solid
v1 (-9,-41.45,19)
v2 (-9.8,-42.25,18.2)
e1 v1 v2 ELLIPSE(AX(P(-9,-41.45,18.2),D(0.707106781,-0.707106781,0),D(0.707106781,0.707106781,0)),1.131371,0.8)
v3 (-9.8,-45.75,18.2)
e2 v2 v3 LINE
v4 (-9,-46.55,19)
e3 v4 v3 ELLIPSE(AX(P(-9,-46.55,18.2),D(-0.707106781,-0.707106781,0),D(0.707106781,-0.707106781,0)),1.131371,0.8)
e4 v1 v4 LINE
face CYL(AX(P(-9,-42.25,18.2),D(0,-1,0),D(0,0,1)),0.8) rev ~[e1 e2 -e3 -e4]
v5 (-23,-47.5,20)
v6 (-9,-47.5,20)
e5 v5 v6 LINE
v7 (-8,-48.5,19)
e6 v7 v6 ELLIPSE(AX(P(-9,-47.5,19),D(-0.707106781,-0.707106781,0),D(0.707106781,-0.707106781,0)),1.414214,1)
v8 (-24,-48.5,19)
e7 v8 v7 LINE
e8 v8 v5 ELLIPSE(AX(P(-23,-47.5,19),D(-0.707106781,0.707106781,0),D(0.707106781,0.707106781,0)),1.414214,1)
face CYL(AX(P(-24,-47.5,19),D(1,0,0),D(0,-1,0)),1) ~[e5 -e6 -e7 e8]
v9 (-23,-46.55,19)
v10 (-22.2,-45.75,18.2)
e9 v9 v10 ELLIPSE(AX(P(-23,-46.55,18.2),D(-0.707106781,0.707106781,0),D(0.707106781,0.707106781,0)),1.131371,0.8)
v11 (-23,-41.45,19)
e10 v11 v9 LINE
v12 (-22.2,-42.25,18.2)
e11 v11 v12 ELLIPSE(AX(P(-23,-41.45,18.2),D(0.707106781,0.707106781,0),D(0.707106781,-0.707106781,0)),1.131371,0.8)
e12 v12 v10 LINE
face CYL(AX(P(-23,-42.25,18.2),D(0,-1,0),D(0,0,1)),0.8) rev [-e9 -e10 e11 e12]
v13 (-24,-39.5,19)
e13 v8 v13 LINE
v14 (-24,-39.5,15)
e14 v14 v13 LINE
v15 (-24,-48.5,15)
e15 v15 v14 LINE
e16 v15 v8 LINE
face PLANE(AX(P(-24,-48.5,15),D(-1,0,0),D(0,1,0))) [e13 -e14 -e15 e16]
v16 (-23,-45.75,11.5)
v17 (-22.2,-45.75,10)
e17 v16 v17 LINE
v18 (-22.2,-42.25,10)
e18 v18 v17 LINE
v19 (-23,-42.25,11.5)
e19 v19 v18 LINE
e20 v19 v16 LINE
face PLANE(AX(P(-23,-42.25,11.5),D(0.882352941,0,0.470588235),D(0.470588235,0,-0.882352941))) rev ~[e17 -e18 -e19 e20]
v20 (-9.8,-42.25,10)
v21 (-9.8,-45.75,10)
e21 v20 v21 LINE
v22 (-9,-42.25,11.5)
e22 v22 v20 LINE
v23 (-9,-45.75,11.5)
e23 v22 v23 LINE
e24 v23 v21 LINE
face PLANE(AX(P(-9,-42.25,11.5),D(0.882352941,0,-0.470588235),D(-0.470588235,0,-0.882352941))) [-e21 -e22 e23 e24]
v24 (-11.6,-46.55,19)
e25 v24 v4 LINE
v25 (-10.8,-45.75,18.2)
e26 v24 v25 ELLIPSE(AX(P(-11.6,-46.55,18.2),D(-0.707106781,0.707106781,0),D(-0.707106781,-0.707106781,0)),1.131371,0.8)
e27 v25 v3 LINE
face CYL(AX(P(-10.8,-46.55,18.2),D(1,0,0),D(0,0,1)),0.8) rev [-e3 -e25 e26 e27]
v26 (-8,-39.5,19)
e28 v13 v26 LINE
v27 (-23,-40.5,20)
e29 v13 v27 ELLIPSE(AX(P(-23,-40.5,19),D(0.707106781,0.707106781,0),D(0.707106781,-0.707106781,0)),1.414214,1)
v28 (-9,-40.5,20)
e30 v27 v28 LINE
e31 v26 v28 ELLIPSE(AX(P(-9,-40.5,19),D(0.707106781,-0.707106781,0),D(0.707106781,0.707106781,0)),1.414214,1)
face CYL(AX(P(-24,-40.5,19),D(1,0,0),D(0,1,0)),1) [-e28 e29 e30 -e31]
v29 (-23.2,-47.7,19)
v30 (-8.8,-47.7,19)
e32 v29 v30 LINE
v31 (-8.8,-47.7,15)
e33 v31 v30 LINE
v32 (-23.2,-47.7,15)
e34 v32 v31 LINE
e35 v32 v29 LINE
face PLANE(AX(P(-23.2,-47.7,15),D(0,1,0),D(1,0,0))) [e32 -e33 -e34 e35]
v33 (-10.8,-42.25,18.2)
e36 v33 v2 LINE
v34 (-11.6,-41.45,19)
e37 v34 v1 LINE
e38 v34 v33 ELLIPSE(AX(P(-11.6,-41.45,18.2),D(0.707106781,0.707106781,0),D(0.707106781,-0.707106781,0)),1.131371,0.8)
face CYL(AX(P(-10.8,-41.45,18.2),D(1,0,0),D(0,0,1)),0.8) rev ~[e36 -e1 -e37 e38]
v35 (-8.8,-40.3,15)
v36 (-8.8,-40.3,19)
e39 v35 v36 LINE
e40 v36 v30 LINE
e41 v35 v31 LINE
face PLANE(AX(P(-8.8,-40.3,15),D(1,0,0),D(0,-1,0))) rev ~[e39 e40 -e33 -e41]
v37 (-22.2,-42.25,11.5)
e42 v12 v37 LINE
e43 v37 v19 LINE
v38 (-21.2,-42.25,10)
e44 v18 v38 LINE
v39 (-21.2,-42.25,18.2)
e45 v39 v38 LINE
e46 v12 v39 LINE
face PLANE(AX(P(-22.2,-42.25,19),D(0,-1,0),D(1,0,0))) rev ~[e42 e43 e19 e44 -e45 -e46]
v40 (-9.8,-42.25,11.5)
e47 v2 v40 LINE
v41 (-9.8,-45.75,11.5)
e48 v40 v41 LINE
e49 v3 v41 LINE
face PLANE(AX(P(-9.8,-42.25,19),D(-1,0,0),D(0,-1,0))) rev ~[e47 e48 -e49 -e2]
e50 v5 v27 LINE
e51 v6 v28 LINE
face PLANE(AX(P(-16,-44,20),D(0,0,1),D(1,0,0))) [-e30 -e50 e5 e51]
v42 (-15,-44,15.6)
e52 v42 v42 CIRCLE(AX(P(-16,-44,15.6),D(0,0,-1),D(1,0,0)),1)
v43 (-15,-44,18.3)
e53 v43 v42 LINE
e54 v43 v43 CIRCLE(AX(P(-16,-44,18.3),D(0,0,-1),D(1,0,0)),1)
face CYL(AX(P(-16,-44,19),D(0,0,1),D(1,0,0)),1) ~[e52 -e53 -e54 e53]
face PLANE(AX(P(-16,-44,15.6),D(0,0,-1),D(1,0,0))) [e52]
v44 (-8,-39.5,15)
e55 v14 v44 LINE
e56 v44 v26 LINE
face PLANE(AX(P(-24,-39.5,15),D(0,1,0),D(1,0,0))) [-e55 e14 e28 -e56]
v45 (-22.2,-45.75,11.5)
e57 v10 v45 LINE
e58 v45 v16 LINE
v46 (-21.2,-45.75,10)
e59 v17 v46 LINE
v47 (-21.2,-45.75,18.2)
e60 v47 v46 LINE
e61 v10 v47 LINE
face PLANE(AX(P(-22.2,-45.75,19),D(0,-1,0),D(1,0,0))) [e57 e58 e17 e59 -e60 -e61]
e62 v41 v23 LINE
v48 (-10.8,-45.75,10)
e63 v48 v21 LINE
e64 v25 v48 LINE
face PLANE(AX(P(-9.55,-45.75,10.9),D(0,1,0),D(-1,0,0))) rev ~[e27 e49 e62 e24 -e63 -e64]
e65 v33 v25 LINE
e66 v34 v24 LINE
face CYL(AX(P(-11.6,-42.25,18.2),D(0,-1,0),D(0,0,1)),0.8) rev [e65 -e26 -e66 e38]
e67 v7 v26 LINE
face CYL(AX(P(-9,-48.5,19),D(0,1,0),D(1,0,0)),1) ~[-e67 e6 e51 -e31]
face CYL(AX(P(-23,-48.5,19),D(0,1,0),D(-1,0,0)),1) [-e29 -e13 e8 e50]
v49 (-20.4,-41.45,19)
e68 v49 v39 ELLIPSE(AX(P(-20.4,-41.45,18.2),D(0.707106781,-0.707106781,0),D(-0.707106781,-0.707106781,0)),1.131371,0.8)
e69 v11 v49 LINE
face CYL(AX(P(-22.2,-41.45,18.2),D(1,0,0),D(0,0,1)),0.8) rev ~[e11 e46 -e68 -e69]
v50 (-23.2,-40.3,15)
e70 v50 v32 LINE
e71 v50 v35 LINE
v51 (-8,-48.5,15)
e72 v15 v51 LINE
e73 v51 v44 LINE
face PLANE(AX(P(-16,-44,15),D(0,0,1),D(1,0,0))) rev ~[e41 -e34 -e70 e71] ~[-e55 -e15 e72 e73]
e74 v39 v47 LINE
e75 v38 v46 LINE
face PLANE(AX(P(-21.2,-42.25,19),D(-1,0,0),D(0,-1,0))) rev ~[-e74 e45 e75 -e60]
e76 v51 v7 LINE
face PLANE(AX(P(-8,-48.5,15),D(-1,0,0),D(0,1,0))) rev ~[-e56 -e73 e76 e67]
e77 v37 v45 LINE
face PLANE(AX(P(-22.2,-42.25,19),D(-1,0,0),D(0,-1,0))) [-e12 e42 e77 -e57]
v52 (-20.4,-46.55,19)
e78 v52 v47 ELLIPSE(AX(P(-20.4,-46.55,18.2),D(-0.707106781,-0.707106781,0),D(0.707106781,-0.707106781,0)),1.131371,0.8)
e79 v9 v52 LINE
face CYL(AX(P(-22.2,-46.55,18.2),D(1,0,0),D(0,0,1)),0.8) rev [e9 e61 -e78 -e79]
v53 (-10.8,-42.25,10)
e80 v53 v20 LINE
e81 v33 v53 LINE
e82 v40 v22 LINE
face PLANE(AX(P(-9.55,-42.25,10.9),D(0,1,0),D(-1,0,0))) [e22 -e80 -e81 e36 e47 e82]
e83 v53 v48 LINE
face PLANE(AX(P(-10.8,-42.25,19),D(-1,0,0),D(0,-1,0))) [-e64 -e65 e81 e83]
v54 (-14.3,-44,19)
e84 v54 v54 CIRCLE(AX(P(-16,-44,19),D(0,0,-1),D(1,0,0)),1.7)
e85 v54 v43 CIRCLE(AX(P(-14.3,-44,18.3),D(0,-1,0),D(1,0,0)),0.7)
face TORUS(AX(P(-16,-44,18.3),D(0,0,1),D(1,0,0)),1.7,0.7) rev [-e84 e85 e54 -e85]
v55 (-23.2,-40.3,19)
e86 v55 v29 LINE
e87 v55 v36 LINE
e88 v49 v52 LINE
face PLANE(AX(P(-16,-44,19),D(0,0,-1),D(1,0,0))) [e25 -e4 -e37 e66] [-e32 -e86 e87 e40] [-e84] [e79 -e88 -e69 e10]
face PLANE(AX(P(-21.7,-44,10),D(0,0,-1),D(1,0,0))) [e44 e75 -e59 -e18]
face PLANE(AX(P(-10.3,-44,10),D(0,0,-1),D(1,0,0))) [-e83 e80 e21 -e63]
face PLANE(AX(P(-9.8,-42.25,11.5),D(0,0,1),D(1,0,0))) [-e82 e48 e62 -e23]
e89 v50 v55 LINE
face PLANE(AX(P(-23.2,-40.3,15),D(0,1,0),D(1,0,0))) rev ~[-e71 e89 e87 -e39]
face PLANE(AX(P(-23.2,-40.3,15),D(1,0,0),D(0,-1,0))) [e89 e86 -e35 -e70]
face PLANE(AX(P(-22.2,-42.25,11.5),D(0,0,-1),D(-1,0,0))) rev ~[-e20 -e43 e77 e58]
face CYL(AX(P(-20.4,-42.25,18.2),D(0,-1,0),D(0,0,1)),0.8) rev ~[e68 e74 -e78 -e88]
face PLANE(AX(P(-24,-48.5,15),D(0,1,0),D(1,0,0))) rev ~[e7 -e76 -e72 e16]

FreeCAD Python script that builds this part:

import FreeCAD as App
import Part
import Sketcher
Q = App.Units.Quantity


def edges_at(feature, points):
    """Names of the edges that pass closest to the given points."""
    edges = feature.Shape.Edges
    near = lambda p: min(range(len(edges)), key=lambda i: edges[i].distToShape(Part.Vertex(*p))[0])
    return sorted({f"Edge{near(p) + 1}" for p in points})

doc = App.newDocument("Part")
body = doc.addObject("PartDesign::Body", "Body")

# Sketch on XY plane
sketch1 = body.newObject("Sketcher::SketchObject", "Sketch")
sketch1.AttachmentSupport = (doc.getObject("XY_Plane"), [""])
sketch1.MapMode = "FlatFace"
sketch1.addGeometry([
    Part.LineSegment(App.Vector(-8, 4.5, 0), App.Vector(-8, -4.5, 0)),
    Part.LineSegment(App.Vector(-8, -4.5, 0), App.Vector(8, -4.5, 0)),
    Part.LineSegment(App.Vector(8, -4.5, 0), App.Vector(8, 4.5, 0)),
    Part.LineSegment(App.Vector(8, 4.5, 0), App.Vector(-8, 4.5, 0)),
], False)
sketch1.addConstraint([
    Sketcher.Constraint("Coincident", 0, 2, 1, 1),
    Sketcher.Constraint("Coincident", 1, 2, 2, 1),
    Sketcher.Constraint("Coincident", 2, 2, 3, 1),
    Sketcher.Constraint("Coincident", 3, 2, 0, 1),
    Sketcher.Constraint("Vertical", 0),
    Sketcher.Constraint("Horizontal", 1),
    Sketcher.Constraint("Vertical", 2),
    Sketcher.Constraint("Horizontal", 3),
    Sketcher.Constraint("Symmetric", 0, 2, 2, 2, -1, 1),
    Sketcher.Constraint("DistanceX", 1, 1, 1, 2, Q("16 mm")),
    Sketcher.Constraint("DistanceY", 0, 2, 0, 1, Q("9 mm")),
])
pad1 = body.newObject("PartDesign::Pad", "Pad")
pad1.Profile = sketch1
pad1.Length = 5

# Sketch on XY plane
sketch2 = body.newObject("Sketcher::SketchObject", "Sketch001")
sketch2.AttachmentSupport = (doc.getObject("XY_Plane"), [""])
sketch2.MapMode = "FlatFace"
sketch2.addGeometry([
    Part.LineSegment(App.Vector(-7.2, -3.7, 0), App.Vector(-7.2, 3.7, 0)),
    Part.LineSegment(App.Vector(-7.2, 3.7, 0), App.Vector(7.2, 3.7, 0)),
    Part.LineSegment(App.Vector(7.2, 3.7, 0), App.Vector(7.2, -3.7, 0)),
    Part.LineSegment(App.Vector(7.2, -3.7, 0), App.Vector(-7.2, -3.7, 0)),
], False)
sketch2.addConstraint([
    Sketcher.Constraint("Coincident", 0, 2, 1, 1),
    Sketcher.Constraint("Coincident", 1, 2, 2, 1),
    Sketcher.Constraint("Coincident", 2, 2, 3, 1),
    Sketcher.Constraint("Coincident", 3, 2, 0, 1),
    Sketcher.Constraint("Vertical", 0),
    Sketcher.Constraint("Horizontal", 1),
    Sketcher.Constraint("Vertical", 2),
    Sketcher.Constraint("Horizontal", 3),
    Sketcher.Constraint("Symmetric", 0, 2, 2, 2, -1, 1),
    Sketcher.Constraint("DistanceX", 1, 1, 1, 2, Q("14.4 mm")),
    Sketcher.Constraint("DistanceY", 0, 1, 0, 2, Q("7.4 mm")),
])
pocket1 = body.newObject("PartDesign::Pocket", "Pocket")
pocket1.Profile = sketch2
pocket1.Length = 4
pocket1.Reversed = True

# Sketch on XY plane
sketch3 = body.newObject("Sketcher::SketchObject", "Sketch002")
sketch3.AttachmentSupport = (doc.getObject("XY_Plane"), [""])
sketch3.MapMode = "FlatFace"
sketch3.AttachmentOffset = App.Placement(App.Vector(0, 0, 4), App.Rotation())
sketch3.addGeometry([
    Part.LineSegment(App.Vector(-6.2, -1.75, 0), App.Vector(-6.2, 1.75, 0)),  # 0
    Part.LineSegment(App.Vector(-6.2, 1.75, 0), App.Vector(-5.2, 1.75, 0)),  # 1
    Part.LineSegment(App.Vector(-5.2, 1.75, 0), App.Vector(-5.2, -1.75, 0)),  # 2
    Part.LineSegment(App.Vector(-5.2, -1.75, 0), App.Vector(-6.2, -1.75, 0)),  # 3
    Part.LineSegment(App.Vector(5.2, -1.75, 0), App.Vector(5.2, 1.75, 0)),  # 4
    Part.LineSegment(App.Vector(5.2, 1.75, 0), App.Vector(6.2, 1.75, 0)),  # 5
    Part.LineSegment(App.Vector(6.2, 1.75, 0), App.Vector(6.2, -1.75, 0)),  # 6
    Part.LineSegment(App.Vector(6.2, -1.75, 0), App.Vector(5.2, -1.75, 0)),  # 7
], False)
sketch3.addConstraint([
    Sketcher.Constraint("Coincident", 0, 2, 1, 1),
    Sketcher.Constraint("Coincident", 1, 2, 2, 1),
    Sketcher.Constraint("Coincident", 2, 2, 3, 1),
    Sketcher.Constraint("Coincident", 3, 2, 0, 1),
    Sketcher.Constraint("Coincident", 4, 2, 5, 1),
    Sketcher.Constraint("Coincident", 5, 2, 6, 1),
    Sketcher.Constraint("Coincident", 6, 2, 7, 1),
    Sketcher.Constraint("Coincident", 7, 2, 4, 1),
    Sketcher.Constraint("Vertical", 0),
    Sketcher.Constraint("Horizontal", 1),
    Sketcher.Constraint("Vertical", 2),
    Sketcher.Constraint("Horizontal", 3),
    Sketcher.Constraint("Vertical", 4),
    Sketcher.Constraint("Horizontal", 5),
    Sketcher.Constraint("Vertical", 6),
    Sketcher.Constraint("Horizontal", 7),
    Sketcher.Constraint("Symmetric", 2, 2, 4, 2, -1, 1),
    Sketcher.Constraint("Symmetric", 0, 2, 6, 2, -1, 1),
    Sketcher.Constraint("Horizontal", 1, 2, 4, 2),
    Sketcher.Constraint("DistanceX", 1, 1, 1, 2, Q("1 mm")),
    Sketcher.Constraint("DistanceY", 0, 1, 0, 2, Q("3.5 mm")),
    Sketcher.Constraint("DistanceX", 0, 2, -1, 1, Q("6.2 mm")),
])
pad2 = body.newObject("PartDesign::Pad", "Pad001")
pad2.Profile = sketch3
pad2.Length = 9
pad2.Reversed = True

# Sketch on XZ plane
sketch4 = body.newObject("Sketcher::SketchObject", "Sketch003")
sketch4.AttachmentSupport = (doc.getObject("XZ_Plane"), [""])
sketch4.MapMode = "FlatFace"
sketch4.AttachmentOffset = App.Placement(App.Vector(0, 0, -1.75), App.Rotation())
sketch4.addGeometry([
    Part.LineSegment(App.Vector(6.2, -3.5, 0), App.Vector(7, -3.5, 0)),  # 0
    Part.LineSegment(App.Vector(7, -3.5, 0), App.Vector(6.2, -5, 0)),  # 1
    Part.LineSegment(App.Vector(6.2, -5, 0), App.Vector(6.2, -3.5, 0)),  # 2
    Part.LineSegment(App.Vector(-7, -3.5, 0), App.Vector(-6.2, -3.5, 0)),  # 3
    Part.LineSegment(App.Vector(-6.2, -3.5, 0), App.Vector(-6.2, -5, 0)),  # 4
    Part.LineSegment(App.Vector(-6.2, -5, 0), App.Vector(-7, -3.5, 0)),  # 5
], False)
sketch4.addConstraint([
    Sketcher.Constraint("Coincident", 0, 2, 1, 1),
    Sketcher.Constraint("Coincident", 1, 2, 2, 1),
    Sketcher.Constraint("Coincident", 2, 2, 0, 1),
    Sketcher.Constraint("Coincident", 3, 2, 4, 1),
    Sketcher.Constraint("Coincident", 4, 2, 5, 1),
    Sketcher.Constraint("Coincident", 5, 2, 3, 1),
    Sketcher.Constraint("Horizontal", 0),
    Sketcher.Constraint("Vertical", 2),
    Sketcher.Constraint("Horizontal", 3),
    Sketcher.Constraint("Vertical", 4),
    Sketcher.Constraint("Symmetric", 2, 2, 3, 2, -2),
    Sketcher.Constraint("Horizontal", 1, 2, 4, 2),
    Sketcher.Constraint("Equal", 0, 3),
    Sketcher.Constraint("DistanceX", 0, 1, 0, 2, Q("0.8 mm")),
    Sketcher.Constraint("DistanceY", 2, 1, 2, 2, Q("1.5 mm")),
    Sketcher.Constraint("DistanceX", -1, 1, 0, 2, Q("7 mm")),
    Sketcher.Constraint("DistanceY", 1, 2, -1, 1, Q("5 mm")),
])
pad3 = body.newObject("PartDesign::Pad", "Pad002")
pad3.Profile = sketch4
pad3.Length = 3.5

# Sketch on XY plane
sketch5 = body.newObject("Sketcher::SketchObject", "Sketch004")
sketch5.AttachmentSupport = (doc.getObject("XY_Plane"), [""])
sketch5.MapMode = "FlatFace"
sketch5.AttachmentOffset = App.Placement(App.Vector(0, 0, 4), App.Rotation())
sketch5.addGeometry(Part.Circle(App.Vector(0, 0, 0), App.Vector(0, 0, 1), 1), False)
sketch5.addConstraint([
    Sketcher.Constraint("Coincident", 0, 3, -1, 1),
    Sketcher.Constraint("Diameter", 0, Q("2 mm")),
])
pad4 = body.newObject("PartDesign::Pad", "Pad003")
pad4.Profile = sketch5
pad4.Length = 3.4
pad4.Reversed = True
doc.recompute()

fillet = body.newObject("PartDesign::Fillet", "Fillet")
fillet.Base = (pad4, edges_at(pad4, [
    (0, 4.5, 5),
    (-8, 0, 5),
    (0, -4.5, 5),
    (8, 0, 5),
]))
fillet.Radius = 1
doc.recompute()

fillet2 = body.newObject("PartDesign::Fillet", "Fillet001")
fillet2.Base = (fillet, edges_at(fillet, [(-1, 0, 4)]))
fillet2.Radius = 0.7
doc.recompute()

fillet3 = body.newObject("PartDesign::Fillet", "Fillet002")
fillet3.Base = (fillet2, edges_at(fillet2, [
    (5.2, 0, 4),
    (5.7, 1.75, 4),
    (6.2, 0, 4),
    (5.7, -1.75, 4),
    (-5.7, -1.75, 4),
    (-6.2, 0, 4),
    (-5.2, 0, 4),
    (-5.7, 1.75, 4),
]))
fillet3.Radius = 0.8
body2 = doc.addObject("PartDesign::Body", "Body001")
doc.recompute()

body.Placement = App.Placement(App.Vector(-33, -44, 15), App.Rotation(App.Vector(0, 0, 1), 0))
boolean = body2.newObject("PartDesign::Boolean", "Boolean")
boolean.Type = "Fuse"
boolean.addObjects([body])
body3 = doc.addObject("PartDesign::Body", "Body002")
doc.recompute()

body2.Placement = App.Placement(App.Vector(33, 0, 4), App.Rotation(App.Vector(0, 0, 1), 0))
boolean2 = body3.newObject("PartDesign::Boolean", "Boolean001")
boolean2.Type = "Fuse"
boolean2.addObjects([body2])
body4 = doc.addObject("PartDesign::Body", "Body003")
doc.recompute()

body3.Placement = App.Placement(App.Vector(-16, 0, -4), App.Rotation(App.Vector(0, 0, 1), 0))
boolean3 = body4.newObject("PartDesign::Boolean", "Boolean002")
boolean3.Type = "Fuse"
boolean3.addObjects([body3])

doc.recompute()
